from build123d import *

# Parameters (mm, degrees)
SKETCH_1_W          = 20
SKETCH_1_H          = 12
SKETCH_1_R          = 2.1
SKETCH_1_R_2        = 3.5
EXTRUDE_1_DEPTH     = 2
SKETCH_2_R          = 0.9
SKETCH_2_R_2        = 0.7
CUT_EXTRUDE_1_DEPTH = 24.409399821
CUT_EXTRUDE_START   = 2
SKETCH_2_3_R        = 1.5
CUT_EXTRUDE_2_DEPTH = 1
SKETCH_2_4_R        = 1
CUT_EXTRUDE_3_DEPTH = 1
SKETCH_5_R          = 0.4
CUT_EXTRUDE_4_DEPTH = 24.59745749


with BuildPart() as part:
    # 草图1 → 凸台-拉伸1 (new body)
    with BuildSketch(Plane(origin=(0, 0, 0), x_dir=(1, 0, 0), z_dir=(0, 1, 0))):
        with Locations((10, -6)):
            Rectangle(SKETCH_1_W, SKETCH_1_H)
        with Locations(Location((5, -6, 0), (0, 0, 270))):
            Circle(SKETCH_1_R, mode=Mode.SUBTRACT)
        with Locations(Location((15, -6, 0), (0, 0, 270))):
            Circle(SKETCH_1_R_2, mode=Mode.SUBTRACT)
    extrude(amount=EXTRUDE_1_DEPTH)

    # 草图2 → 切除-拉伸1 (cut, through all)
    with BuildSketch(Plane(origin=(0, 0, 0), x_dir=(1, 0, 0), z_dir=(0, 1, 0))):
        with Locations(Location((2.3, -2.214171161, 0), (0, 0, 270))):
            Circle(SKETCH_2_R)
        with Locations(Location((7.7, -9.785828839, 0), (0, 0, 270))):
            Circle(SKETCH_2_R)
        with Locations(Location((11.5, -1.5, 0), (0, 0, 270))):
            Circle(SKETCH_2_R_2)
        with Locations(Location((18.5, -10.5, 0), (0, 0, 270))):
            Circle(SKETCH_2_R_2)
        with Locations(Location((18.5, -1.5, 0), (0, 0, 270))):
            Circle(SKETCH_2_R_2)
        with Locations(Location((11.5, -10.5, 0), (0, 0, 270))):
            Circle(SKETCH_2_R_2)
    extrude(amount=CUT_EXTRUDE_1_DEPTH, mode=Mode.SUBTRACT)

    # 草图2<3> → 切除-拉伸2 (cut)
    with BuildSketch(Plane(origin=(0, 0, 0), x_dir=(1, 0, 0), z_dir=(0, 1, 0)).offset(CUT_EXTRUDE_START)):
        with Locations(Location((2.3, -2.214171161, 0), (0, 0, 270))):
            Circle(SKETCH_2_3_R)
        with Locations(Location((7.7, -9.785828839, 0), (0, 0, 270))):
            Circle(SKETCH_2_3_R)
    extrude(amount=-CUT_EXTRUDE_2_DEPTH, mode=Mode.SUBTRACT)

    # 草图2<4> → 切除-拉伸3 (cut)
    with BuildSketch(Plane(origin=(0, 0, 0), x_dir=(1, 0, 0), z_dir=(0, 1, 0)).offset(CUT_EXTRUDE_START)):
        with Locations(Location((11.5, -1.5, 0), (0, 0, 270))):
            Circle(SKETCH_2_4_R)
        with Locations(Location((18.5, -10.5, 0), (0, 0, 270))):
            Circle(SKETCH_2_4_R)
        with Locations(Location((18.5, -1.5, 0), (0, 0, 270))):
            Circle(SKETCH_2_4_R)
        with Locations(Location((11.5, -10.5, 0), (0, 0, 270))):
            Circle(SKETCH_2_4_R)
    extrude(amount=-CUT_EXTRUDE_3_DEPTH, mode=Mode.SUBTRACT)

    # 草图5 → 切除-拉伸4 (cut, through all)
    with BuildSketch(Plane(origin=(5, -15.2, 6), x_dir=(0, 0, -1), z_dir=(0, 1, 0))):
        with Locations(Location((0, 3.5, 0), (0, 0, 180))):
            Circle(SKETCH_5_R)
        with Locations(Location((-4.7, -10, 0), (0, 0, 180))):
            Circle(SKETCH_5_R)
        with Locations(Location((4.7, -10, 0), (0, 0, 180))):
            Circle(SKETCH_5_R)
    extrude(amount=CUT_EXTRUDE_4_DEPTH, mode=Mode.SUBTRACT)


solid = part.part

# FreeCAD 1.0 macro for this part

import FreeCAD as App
import Part
import Sketcher

V = App.Vector
Q = App.Units.Quantity


def add_polygon(sketch, points):
    """Adds a closed chain of lines whose ends are joined by coincident constraints."""
    first, n = sketch.GeometryCount, len(points)
    for a, b in zip(points, points[1:] + points[:1]):
        sketch.addGeometry(Part.LineSegment(App.Vector(*a, 0), App.Vector(*b, 0)), False)
    for i in range(n):
        sketch.addConstraint(Sketcher.Constraint("Coincident", first + i, 2, first + (i + 1) % n, 1))

doc = App.newDocument("Part")
body = doc.addObject("PartDesign::Body", "Body")

sketch1 = body.newObject("Sketcher::SketchObject", "Sketch")
sketch1.AttachmentSupport = (doc.getObject("XZ_Plane"), [""])
sketch1.MapMode = "FlatFace"
add_polygon(sketch1, [(0, 0), (0, 12), (20, 12), (20, 0)])
sketch1.addGeometry(Part.Circle(V(5, 6, 0), V(0, 0, 1), 2.1), False)
sketch1.addGeometry(Part.Circle(V(15, 6, 0), V(0, 0, 1), 3.5), False)
sketch1.addConstraint([
    Sketcher.Constraint("Vertical", 0),
    Sketcher.Constraint("Horizontal", 1),
    Sketcher.Constraint("Vertical", 2),
    Sketcher.Constraint("Horizontal", 3),
    Sketcher.Constraint("Coincident", 3, 2, -1, 1),
    Sketcher.Constraint("Horizontal", 4, 3, 5, 3),
    Sketcher.Constraint("Diameter", 5, Q("7 mm")),
    Sketcher.Constraint("Diameter", 4, Q("4.2 mm")),
    Sketcher.Constraint("DistanceX", 1, 1, 1, 2, Q("20 mm")),
    Sketcher.Constraint("DistanceY", 0, 1, 0, 2, Q("12 mm")),
    Sketcher.Constraint("DistanceX", -1, 1, 4, 3, Q("5 mm")),
    Sketcher.Constraint("DistanceY", -1, 1, 4, 3, Q("6 mm")),
    Sketcher.Constraint("DistanceX", -1, 1, 5, 3, Q("15 mm")),
])
pad1 = body.newObject("PartDesign::Pad", "Pad")
pad1.Profile = sketch1
pad1.Length = 2
pad1.Reversed = True

sketch2 = body.newObject("Sketcher::SketchObject", "Sketch001")
sketch2.AttachmentSupport = (doc.getObject("XZ_Plane"), [""])
sketch2.MapMode = "FlatFace"
sketch2.addGeometry([
    Part.Circle(V(2.3, 2.2, 0), V(0, 0, 1), 0.9),
    Part.Circle(V(7.7, 9.8, 0), V(0, 0, 1), 0.9),
    Part.Circle(V(11.5, 1.5, 0), V(0, 0, 1), 0.7),
    Part.Circle(V(18.5, 10.5, 0), V(0, 0, 1), 0.7),
    Part.Circle(V(18.5, 1.5, 0), V(0, 0, 1), 0.7),
    Part.Circle(V(11.5, 10.5, 0), V(0, 0, 1), 0.7),
], False)
sketch2.addConstraint([
    Sketcher.Constraint("Equal", 0, 1),
    Sketcher.Constraint("Equal", 2, 3),
    Sketcher.Constraint("Equal", 3, 4),
    Sketcher.Constraint("Equal", 4, 5),
    Sketcher.Constraint("Horizontal", 2, 3, 4, 3),
    Sketcher.Constraint("Horizontal", 3, 3, 5, 3),
    Sketcher.Constraint("Vertical", 3, 3, 4, 3),
    Sketcher.Constraint("Vertical", 2, 3, 5, 3),
    Sketcher.Constraint("Diameter", 0, Q("1.8 mm")),
    Sketcher.Constraint("Diameter", 2, Q("1.4 mm")),
    Sketcher.Constraint("DistanceX", 2, 3, 3, 3, Q("7 mm")),
    Sketcher.Constraint("DistanceY", 2, 3, 3, 3, Q("9 mm")),
    Sketcher.Constraint("DistanceX", -1, 1, 0, 3, Q("2.3 mm")),
    Sketcher.Constraint("DistanceX", -1, 1, 1, 3, Q("7.7 mm")),
    Sketcher.Constraint("DistanceX", -1, 1, 2, 3, Q("11.5 mm")),
    Sketcher.Constraint("DistanceY", -1, 1, 2, 3, Q("1.5 mm")),
    Sketcher.Constraint("DistanceY", -1, 1, 0, 3, Q("2.214171 mm")),
    Sketcher.Constraint("DistanceY", -1, 1, 1, 3, Q("9.785829 mm")),
])
pocket1 = body.newObject("PartDesign::Pocket", "Pocket")
pocket1.Profile = sketch2
pocket1.Type = "ThroughAll"

sketch3 = body.newObject("Sketcher::SketchObject", "Sketch002")
sketch3.AttachmentSupport = (doc.getObject("XZ_Plane"), [""])
sketch3.MapMode = "FlatFace"
sketch3.AttachmentOffset = App.Placement(V(0, 0, -2), App.Rotation())
sketch3.addGeometry([
    Part.Circle(V(2.3, 2.2, 0), V(0, 0, 1), 1.5),
    Part.Circle(V(7.7, 9.8, 0), V(0, 0, 1), 1.5),
], False)
sketch3.addConstraint([
    Sketcher.Constraint("Equal", 0, 1),
    Sketcher.Constraint("Diameter", 0, Q("3 mm")),
    Sketcher.Constraint("DistanceX", -1, 1, 0, 3, Q("2.3 mm")),
    Sketcher.Constraint("DistanceX", -1, 1, 1, 3, Q("7.7 mm")),
    Sketcher.Constraint("DistanceY", -1, 1, 0, 3, Q("2.214171 mm")),
    Sketcher.Constraint("DistanceY", -1, 1, 1, 3, Q("9.785829 mm")),
])
pocket2 = body.newObject("PartDesign::Pocket", "Pocket001")
pocket2.Profile = sketch3
pocket2.Length = 1
pocket2.Reversed = True

sketch4 = body.newObject("Sketcher::SketchObject", "Sketch003")
sketch4.AttachmentSupport = (doc.getObject("XZ_Plane"), [""])
sketch4.MapMode = "FlatFace"
sketch4.AttachmentOffset = App.Placement(V(0, 0, -2), App.Rotation())
sketch4.addGeometry([
    Part.Circle(V(11.5, 1.5, 0), V(0, 0, 1), 1),
    Part.Circle(V(18.5, 10.5, 0), V(0, 0, 1), 1),
    Part.Circle(V(18.5, 1.5, 0), V(0, 0, 1), 1),
    Part.Circle(V(11.5, 10.5, 0), V(0, 0, 1), 1),
], False)
sketch4.addConstraint([
    Sketcher.Constraint("Equal", 0, 1),
    Sketcher.Constraint("Equal", 1, 2),
    Sketcher.Constraint("Equal", 2, 3),
    Sketcher.Constraint("Horizontal", 0, 3, 2, 3),
    Sketcher.Constraint("Horizontal", 1, 3, 3, 3),
    Sketcher.Constraint("Vertical", 1, 3, 2, 3),
    Sketcher.Constraint("Vertical", 0, 3, 3, 3),
    Sketcher.Constraint("Diameter", 0, Q("2 mm")),
    Sketcher.Constraint("DistanceX", 0, 3, 1, 3, Q("7 mm")),
    Sketcher.Constraint("DistanceY", 0, 3, 1, 3, Q("9 mm")),
    Sketcher.Constraint("DistanceX", -1, 1, 0, 3, Q("11.5 mm")),
    Sketcher.Constraint("DistanceY", -1, 1, 0, 3, Q("1.5 mm")),
])
pocket3 = body.newObject("PartDesign::Pocket", "Pocket002")
pocket3.Profile = sketch4
pocket3.Length = 1
pocket3.Reversed = True

sketch5 = body.newObject("Sketcher::SketchObject", "Sketch004")
sketch5.AttachmentSupport = (doc.getObject("XZ_Plane"), [""])
sketch5.MapMode = "FlatFace"
sketch5.AttachmentOffset = App.Placement(V(0, 0, 15.2), App.Rotation())
sketch5.addGeometry([
    Part.Circle(V(1.5, 6, 0), V(0, 0, 1), 0.4),
    Part.Circle(V(15, 10.7, 0), V(0, 0, 1), 0.4),
    Part.Circle(V(15, 1.3, 0), V(0, 0, 1), 0.4),
], False)
sketch5.addConstraint([
    Sketcher.Constraint("Equal", 0, 1),
    Sketcher.Constraint("Equal", 1, 2),
    Sketcher.Constraint("Vertical", 1, 3, 2, 3),
    Sketcher.Constraint("Diameter", 0, Q("0.8 mm")),
    Sketcher.Constraint("DistanceY", -1, 1, 0, 3, Q("6 mm")),
    Sketcher.Constraint("DistanceX", -1, 1, 1, 3, Q("15 mm")),
    Sketcher.Constraint("DistanceX", -1, 1, 0, 3, Q("1.5 mm")),
    Sketcher.Constraint("DistanceY", -1, 1, 1, 3, Q("10.7 mm")),
    Sketcher.Constraint("DistanceY", -1, 1, 2, 3, Q("1.3 mm")),
])
pocket4 = body.newObject("PartDesign::Pocket", "Pocket003")
pocket4.Profile = sketch5
pocket4.Type = "ThroughAll"

doc.recompute()
